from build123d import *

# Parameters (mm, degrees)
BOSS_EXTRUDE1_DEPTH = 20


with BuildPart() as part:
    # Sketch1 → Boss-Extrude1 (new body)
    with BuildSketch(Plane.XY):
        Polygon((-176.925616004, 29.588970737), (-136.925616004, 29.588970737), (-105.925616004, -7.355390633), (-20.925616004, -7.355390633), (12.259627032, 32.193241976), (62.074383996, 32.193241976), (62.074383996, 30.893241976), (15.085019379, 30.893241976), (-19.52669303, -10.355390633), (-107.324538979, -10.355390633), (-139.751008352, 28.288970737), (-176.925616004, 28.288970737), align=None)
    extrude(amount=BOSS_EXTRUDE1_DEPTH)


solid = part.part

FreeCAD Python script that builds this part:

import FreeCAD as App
import Part
import Sketcher
from FreeCAD import Vector
Q = App.Units.Quantity

doc = App.newDocument("Part")
body = doc.addObject("PartDesign::Body", "Body")

# Sketch on XY plane
sketch1 = doc.addObject("Sketcher::SketchObject", "Sketch")
body.addObject(sketch1)
sketch1.AttachmentSupport = (doc.XY_Plane, [""])
sketch1.MapMode = "FlatFace"
sketch1.addGeometry([
    Part.LineSegment(Vector(-136.9, 29.6, 0), Vector(-176.9, 29.6, 0)),  # 0
    Part.LineSegment(Vector(-176.9, 29.6, 0), Vector(-176.9, 28.3, 0)),  # 1
    Part.LineSegment(Vector(-176.9, 28.3, 0), Vector(-139.8, 28.3, 0)),  # 2
    Part.LineSegment(Vector(-139.8, 28.3, 0), Vector(-107.3, -10.4, 0)),  # 3
    Part.LineSegment(Vector(-107.3, -10.4, 0), Vector(-19.5, -10.4, 0)),  # 4
    Part.LineSegment(Vector(-19.5, -10.4, 0), Vector(15.1, 30.9, 0)),  # 5
    Part.LineSegment(Vector(15.1, 30.9, 0), Vector(62.1, 30.9, 0)),  # 6
    Part.LineSegment(Vector(62.1, 30.9, 0), Vector(62.1, 32.2, 0)),  # 7
    Part.LineSegment(Vector(62.1, 32.2, 0), Vector(12.3, 32.2, 0)),  # 8
    Part.LineSegment(Vector(12.3, 32.2, 0), Vector(-20.9, -7.4, 0)),  # 9
    Part.LineSegment(Vector(-20.9, -7.4, 0), Vector(-105.9, -7.4, 0)),  # 10
    Part.LineSegment(Vector(-105.9, -7.4, 0), Vector(-136.9, 29.6, 0)),  # 11
], False)
sketch1.addConstraint([
    Sketcher.Constraint("Coincident", 0, 2, 1, 1),
    Sketcher.Constraint("Coincident", 1, 2, 2, 1),
    Sketcher.Constraint("Coincident", 2, 2, 3, 1),
    Sketcher.Constraint("Coincident", 3, 2, 4, 1),
    Sketcher.Constraint("Coincident", 4, 2, 5, 1),
    Sketcher.Constraint("Coincident", 5, 2, 6, 1),
    Sketcher.Constraint("Coincident", 6, 2, 7, 1),
    Sketcher.Constraint("Coincident", 7, 2, 8, 1),
    Sketcher.Constraint("Coincident", 8, 2, 9, 1),
    Sketcher.Constraint("Coincident", 9, 2, 10, 1),
    Sketcher.Constraint("Coincident", 10, 2, 11, 1),
    Sketcher.Constraint("Coincident", 11, 2, 0, 1),
    Sketcher.Constraint("Horizontal", 0),
    Sketcher.Constraint("Vertical", 1),
    Sketcher.Constraint("Horizontal", 2),
    Sketcher.Constraint("Horizontal", 4),
    Sketcher.Constraint("Horizontal", 6),
    Sketcher.Constraint("Vertical", 7),
    Sketcher.Constraint("Horizontal", 8),
    Sketcher.Constraint("Horizontal", 10),
    Sketcher.Constraint("Parallel", 5, 9),
    Sketcher.Constraint("Parallel", 3, 11),
    Sketcher.Constraint("Equal", 1, 7),
    Sketcher.Constraint("DistanceX", 0, 2, 0, 1, 40.0),
    Sketcher.Constraint("DistanceX", 10, 2, 10, 1, 85.0),
    Sketcher.Constraint("Angle", 3, Q("-50 deg")),
    Sketcher.Constraint("Angle", 5, Q("50 deg")),
    Sketcher.Constraint("DistanceY", 1, 2, 1, 1, 1.3),
    Sketcher.Constraint("DistanceX", 0, 2, 6, 2, 239.0),
    Sketcher.Constraint("DistanceY", 4, 2, 9, 2, 3.0),
    Sketcher.Constraint("DistanceX", 9, 2, 6, 2, 83.0),
    Sketcher.Constraint("DistanceX", 2, 1, 2, 2, 37.174608),
    Sketcher.Constraint("DistanceX", 4, 1, 4, 2, 87.797846),
    Sketcher.Constraint("DistanceX", 6, 1, 6, 2, 46.989365),
    Sketcher.Constraint("DistanceY", -1, 1, 0, 2, 29.588971),
    Sketcher.Constraint("DistanceX", 2, 2, -1, 1, 139.751008),
])
pad1 = doc.addObject("PartDesign::Pad", "Pad")
body.addObject(pad1)
pad1.Profile = sketch1
pad1.Length = 20

doc.recompute()
